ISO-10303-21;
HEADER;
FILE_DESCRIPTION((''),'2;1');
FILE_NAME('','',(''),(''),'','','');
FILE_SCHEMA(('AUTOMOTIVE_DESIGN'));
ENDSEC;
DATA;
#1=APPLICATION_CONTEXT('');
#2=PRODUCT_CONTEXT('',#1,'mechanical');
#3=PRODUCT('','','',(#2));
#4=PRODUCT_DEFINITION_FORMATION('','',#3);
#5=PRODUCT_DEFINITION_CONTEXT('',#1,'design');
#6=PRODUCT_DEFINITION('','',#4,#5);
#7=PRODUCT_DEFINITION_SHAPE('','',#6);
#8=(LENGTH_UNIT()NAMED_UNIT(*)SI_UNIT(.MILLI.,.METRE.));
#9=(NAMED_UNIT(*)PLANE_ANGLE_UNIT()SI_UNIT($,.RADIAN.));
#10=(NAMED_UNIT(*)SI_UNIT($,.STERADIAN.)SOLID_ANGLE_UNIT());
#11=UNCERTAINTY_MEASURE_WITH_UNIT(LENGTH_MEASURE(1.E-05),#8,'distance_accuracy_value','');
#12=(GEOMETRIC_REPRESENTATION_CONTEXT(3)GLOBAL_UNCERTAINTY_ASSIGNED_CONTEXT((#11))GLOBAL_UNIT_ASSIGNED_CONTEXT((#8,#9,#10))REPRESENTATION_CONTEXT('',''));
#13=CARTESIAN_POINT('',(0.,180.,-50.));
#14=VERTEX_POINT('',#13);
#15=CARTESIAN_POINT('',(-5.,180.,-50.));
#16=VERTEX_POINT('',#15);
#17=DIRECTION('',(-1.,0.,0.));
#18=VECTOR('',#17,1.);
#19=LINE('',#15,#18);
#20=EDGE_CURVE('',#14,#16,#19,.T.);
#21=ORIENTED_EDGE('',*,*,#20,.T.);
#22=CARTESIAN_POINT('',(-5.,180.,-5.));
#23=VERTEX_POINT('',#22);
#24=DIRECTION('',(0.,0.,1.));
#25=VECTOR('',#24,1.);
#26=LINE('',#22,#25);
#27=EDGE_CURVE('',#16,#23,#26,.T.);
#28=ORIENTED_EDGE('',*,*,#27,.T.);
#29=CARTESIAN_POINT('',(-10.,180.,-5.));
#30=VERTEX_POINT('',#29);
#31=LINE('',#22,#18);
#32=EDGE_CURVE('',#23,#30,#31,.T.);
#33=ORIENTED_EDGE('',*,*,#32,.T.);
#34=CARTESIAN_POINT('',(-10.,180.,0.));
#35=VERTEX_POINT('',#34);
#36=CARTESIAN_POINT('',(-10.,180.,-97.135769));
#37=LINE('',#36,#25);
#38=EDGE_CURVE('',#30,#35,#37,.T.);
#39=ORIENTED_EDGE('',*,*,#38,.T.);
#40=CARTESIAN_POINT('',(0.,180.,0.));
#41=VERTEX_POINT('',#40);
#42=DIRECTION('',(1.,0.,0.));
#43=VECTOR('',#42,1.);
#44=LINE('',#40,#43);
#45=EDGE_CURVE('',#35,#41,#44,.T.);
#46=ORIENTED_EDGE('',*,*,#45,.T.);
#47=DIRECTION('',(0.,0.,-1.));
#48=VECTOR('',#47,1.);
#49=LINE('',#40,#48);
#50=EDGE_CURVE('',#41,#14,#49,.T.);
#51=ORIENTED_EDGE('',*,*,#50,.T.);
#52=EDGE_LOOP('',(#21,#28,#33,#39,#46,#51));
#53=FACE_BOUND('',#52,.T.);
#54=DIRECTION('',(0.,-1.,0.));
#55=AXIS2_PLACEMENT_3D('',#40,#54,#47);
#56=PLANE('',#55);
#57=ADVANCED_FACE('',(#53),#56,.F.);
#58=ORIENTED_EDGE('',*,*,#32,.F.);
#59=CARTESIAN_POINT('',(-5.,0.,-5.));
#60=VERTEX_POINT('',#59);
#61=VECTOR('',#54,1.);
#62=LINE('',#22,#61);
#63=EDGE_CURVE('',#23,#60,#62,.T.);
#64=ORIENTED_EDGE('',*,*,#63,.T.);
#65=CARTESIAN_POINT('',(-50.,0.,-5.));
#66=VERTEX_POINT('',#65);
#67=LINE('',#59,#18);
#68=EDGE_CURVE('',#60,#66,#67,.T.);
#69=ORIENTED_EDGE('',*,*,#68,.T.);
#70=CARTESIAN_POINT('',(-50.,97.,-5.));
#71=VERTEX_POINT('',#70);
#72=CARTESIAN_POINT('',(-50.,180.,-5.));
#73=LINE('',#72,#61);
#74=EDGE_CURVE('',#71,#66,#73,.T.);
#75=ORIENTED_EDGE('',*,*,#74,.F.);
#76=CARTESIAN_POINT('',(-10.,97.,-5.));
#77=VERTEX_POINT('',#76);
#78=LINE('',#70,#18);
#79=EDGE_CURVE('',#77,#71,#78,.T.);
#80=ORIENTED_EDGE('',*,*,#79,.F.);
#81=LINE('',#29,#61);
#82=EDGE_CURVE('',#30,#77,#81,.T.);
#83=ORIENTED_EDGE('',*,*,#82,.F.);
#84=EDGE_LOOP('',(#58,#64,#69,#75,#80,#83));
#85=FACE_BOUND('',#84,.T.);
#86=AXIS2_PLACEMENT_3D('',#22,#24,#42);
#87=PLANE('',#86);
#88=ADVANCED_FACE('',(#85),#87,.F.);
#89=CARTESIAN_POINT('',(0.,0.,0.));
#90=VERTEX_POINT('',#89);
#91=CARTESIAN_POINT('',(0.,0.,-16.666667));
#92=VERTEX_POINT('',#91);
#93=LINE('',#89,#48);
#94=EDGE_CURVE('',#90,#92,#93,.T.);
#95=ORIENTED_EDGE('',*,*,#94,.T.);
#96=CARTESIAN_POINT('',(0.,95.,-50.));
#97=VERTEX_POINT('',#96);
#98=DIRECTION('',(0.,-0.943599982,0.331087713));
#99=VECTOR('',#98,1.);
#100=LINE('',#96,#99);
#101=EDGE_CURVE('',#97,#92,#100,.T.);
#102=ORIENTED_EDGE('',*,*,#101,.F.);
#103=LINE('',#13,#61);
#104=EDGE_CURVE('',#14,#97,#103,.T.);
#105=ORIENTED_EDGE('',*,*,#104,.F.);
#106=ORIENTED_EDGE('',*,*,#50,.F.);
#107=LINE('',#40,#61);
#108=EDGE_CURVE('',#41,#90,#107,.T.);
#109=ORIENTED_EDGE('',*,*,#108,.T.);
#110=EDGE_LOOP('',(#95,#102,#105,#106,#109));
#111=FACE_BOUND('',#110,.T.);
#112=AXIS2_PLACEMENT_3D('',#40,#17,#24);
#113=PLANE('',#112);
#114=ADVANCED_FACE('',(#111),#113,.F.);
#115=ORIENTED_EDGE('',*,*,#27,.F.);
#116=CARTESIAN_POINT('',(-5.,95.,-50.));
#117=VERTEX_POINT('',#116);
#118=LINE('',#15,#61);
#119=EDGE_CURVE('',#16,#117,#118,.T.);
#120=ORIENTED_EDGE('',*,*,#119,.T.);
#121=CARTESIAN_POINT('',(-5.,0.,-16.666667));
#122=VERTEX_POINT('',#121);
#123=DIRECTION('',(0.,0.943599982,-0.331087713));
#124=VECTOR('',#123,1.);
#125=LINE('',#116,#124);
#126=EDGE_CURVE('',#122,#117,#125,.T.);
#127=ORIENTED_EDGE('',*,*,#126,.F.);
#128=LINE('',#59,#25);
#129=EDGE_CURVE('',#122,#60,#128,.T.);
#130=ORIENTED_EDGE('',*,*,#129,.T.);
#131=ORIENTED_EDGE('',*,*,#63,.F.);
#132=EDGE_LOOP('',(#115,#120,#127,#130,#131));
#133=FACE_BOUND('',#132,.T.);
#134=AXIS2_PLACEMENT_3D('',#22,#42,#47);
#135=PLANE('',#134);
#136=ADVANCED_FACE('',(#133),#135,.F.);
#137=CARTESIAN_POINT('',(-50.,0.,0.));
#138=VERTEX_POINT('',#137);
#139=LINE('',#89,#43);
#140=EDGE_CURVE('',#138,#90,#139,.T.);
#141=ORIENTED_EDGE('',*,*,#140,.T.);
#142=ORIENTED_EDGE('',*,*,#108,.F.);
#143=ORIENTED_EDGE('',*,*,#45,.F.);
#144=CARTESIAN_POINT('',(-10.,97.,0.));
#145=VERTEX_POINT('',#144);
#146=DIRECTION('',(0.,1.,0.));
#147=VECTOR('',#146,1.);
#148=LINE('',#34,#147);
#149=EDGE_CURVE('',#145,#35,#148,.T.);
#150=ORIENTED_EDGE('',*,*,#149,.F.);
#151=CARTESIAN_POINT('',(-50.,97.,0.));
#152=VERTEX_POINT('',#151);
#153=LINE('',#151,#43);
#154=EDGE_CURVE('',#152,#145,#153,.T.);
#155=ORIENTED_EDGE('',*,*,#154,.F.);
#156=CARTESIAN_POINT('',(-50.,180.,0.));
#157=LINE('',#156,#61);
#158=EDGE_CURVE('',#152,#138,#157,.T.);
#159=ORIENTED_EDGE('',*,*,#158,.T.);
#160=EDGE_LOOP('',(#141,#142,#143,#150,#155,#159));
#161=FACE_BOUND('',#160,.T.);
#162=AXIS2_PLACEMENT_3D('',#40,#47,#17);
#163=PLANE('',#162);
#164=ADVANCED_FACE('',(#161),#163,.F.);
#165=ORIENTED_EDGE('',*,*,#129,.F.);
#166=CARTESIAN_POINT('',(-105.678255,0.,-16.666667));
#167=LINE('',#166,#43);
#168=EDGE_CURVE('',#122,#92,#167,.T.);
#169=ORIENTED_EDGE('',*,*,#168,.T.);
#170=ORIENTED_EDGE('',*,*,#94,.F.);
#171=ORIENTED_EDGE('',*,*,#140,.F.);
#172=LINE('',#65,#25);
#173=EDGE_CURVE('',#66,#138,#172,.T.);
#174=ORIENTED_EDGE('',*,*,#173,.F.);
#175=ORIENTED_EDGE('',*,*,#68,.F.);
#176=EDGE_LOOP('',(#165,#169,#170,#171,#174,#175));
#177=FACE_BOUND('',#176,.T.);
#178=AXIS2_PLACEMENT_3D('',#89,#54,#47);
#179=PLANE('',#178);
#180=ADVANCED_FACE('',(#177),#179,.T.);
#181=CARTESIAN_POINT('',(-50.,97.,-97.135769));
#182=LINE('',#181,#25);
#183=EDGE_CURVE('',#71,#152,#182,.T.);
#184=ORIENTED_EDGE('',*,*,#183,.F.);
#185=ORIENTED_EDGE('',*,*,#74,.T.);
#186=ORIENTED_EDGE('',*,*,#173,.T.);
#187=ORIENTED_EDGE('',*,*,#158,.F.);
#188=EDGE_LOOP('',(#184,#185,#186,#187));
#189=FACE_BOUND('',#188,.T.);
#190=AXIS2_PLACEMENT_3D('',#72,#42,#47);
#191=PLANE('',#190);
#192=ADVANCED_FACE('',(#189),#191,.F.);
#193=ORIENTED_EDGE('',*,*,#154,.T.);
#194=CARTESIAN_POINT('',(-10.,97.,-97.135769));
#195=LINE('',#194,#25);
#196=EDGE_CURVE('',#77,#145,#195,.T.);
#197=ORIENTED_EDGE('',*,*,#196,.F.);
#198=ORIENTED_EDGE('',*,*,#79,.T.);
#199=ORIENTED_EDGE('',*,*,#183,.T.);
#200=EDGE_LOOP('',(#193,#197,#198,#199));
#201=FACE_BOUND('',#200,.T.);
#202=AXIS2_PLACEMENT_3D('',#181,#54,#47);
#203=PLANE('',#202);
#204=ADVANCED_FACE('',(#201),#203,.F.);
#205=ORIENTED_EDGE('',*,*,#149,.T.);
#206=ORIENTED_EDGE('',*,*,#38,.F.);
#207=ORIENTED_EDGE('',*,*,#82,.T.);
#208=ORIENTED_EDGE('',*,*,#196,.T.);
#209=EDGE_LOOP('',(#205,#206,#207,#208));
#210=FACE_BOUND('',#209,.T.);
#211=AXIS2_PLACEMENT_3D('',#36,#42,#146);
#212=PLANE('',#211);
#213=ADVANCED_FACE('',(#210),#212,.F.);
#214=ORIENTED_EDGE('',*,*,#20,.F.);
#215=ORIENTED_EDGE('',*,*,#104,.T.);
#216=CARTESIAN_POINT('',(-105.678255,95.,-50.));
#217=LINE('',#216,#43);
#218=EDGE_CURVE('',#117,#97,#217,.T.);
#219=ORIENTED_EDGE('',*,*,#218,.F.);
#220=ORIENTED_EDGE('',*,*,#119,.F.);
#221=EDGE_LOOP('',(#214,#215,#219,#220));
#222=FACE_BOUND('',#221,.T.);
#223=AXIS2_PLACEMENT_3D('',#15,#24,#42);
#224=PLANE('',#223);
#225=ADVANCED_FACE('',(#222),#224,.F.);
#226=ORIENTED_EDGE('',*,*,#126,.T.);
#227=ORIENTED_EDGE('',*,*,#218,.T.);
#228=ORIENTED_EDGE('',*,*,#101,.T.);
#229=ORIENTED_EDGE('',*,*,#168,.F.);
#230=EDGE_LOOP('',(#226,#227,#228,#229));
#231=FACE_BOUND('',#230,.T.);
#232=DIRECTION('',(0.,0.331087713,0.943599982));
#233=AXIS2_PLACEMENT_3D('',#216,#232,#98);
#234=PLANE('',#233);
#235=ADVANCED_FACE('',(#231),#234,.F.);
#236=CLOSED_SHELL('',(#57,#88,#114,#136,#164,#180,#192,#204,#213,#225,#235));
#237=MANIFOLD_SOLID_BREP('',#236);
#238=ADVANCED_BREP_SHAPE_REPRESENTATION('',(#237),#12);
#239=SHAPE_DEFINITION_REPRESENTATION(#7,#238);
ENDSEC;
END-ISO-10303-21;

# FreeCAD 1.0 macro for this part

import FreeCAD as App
import Part
import Sketcher
from FreeCAD import Vector


def add_polygon(sketch, points):
    """Adds a closed chain of lines whose ends are joined by coincident constraints."""
    first, n = sketch.GeometryCount, len(points)
    for a, b in zip(points, points[1:] + points[:1]):
        sketch.addGeometry(Part.LineSegment(App.Vector(*a, 0), App.Vector(*b, 0)), False)
    for i in range(n):
        sketch.addConstraint(Sketcher.Constraint("Coincident", first + i, 2, first + (i + 1) % n, 1))

doc = App.newDocument("Part")
body = doc.addObject("PartDesign::Body", "Body")

# Sketch on XZ plane
sketch1 = doc.addObject("Sketcher::SketchObject", "Sketch")
body.addObject(sketch1)
sketch1.AttachmentSupport = (doc.XZ_Plane, [""])
sketch1.MapMode = "FlatFace"
add_polygon(sketch1, [(-50, 0), (0, 0), (0, -50), (-5, -50), (-5, -5), (-50, -5)])  # lines 0-5
sketch1.addConstraint([
    Sketcher.Constraint("Horizontal", 0),
    Sketcher.Constraint("Vertical", 1),
    Sketcher.Constraint("Horizontal", 2),
    Sketcher.Constraint("Vertical", 3),
    Sketcher.Constraint("Horizontal", 4),
    Sketcher.Constraint("Vertical", 5),
    Sketcher.Constraint("Coincident", 0, 2, -1, 1),
    Sketcher.Constraint("Equal", 0, 1),
    Sketcher.Constraint("Equal", 4, 3),
    Sketcher.Constraint("DistanceX", 0, 1, 0, 2, 50.0),
    Sketcher.Constraint("DistanceX", 2, 2, 2, 1, 5.0),
])
pad1 = doc.addObject("PartDesign::Pad", "Pad")
body.addObject(pad1)
pad1.Profile = sketch1
pad1.Length = 180
pad1.Reversed = True

# Sketch on YZ plane
sketch2 = doc.addObject("Sketcher::SketchObject", "Sketch001")
body.addObject(sketch2)
sketch2.AttachmentSupport = (doc.YZ_Plane, [""])
sketch2.MapMode = "FlatFace"
add_polygon(sketch2, [(95, -50), (0, -17), (0, -50)])  # lines 0-2
sketch2.addConstraint([
    Sketcher.Constraint("Vertical", 1),
    Sketcher.Constraint("Horizontal", 2),
    Sketcher.Constraint("PointOnObject", 0, 2, -2),
    Sketcher.Constraint("DistanceX", 2, 1, 2, 2, 95.0),
    Sketcher.Constraint("DistanceY", 1, 2, -1, 1, 50.0),
    Sketcher.Constraint("DistanceY", 1, 2, 1, 1, 33.333333),
])
pocket1 = doc.addObject("PartDesign::Pocket", "Pocket")
body.addObject(pocket1)
pocket1.Profile = sketch2
pocket1.Length = 5

# Sketch on XY plane
sketch3 = doc.addObject("Sketcher::SketchObject", "Sketch002")
body.addObject(sketch3)
sketch3.AttachmentSupport = (doc.XY_Plane, [""])
sketch3.MapMode = "FlatFace"
add_polygon(sketch3, [(-50, 180), (-50, 97), (-10, 97), (-10, 180)])  # lines 0-3
sketch3.addConstraint([
    Sketcher.Constraint("Vertical", 0),
    Sketcher.Constraint("Horizontal", 1),
    Sketcher.Constraint("Vertical", 2),
    Sketcher.Constraint("Horizontal", 3),
    Sketcher.Constraint("DistanceX", 1, 1, 1, 2, 40.0),
    Sketcher.Constraint("DistanceY", 0, 2, 0, 1, 83.0),
    Sketcher.Constraint("DistanceX", 0, 2, -1, 1, 50.0),
    Sketcher.Constraint("DistanceY", -1, 1, 0, 2, 97.0),
])
pocket2 = doc.addObject("PartDesign::Pocket", "Pocket001")
body.addObject(pocket2)
pocket2.Profile = sketch3
pocket2.Length = 5

doc.recompute()
